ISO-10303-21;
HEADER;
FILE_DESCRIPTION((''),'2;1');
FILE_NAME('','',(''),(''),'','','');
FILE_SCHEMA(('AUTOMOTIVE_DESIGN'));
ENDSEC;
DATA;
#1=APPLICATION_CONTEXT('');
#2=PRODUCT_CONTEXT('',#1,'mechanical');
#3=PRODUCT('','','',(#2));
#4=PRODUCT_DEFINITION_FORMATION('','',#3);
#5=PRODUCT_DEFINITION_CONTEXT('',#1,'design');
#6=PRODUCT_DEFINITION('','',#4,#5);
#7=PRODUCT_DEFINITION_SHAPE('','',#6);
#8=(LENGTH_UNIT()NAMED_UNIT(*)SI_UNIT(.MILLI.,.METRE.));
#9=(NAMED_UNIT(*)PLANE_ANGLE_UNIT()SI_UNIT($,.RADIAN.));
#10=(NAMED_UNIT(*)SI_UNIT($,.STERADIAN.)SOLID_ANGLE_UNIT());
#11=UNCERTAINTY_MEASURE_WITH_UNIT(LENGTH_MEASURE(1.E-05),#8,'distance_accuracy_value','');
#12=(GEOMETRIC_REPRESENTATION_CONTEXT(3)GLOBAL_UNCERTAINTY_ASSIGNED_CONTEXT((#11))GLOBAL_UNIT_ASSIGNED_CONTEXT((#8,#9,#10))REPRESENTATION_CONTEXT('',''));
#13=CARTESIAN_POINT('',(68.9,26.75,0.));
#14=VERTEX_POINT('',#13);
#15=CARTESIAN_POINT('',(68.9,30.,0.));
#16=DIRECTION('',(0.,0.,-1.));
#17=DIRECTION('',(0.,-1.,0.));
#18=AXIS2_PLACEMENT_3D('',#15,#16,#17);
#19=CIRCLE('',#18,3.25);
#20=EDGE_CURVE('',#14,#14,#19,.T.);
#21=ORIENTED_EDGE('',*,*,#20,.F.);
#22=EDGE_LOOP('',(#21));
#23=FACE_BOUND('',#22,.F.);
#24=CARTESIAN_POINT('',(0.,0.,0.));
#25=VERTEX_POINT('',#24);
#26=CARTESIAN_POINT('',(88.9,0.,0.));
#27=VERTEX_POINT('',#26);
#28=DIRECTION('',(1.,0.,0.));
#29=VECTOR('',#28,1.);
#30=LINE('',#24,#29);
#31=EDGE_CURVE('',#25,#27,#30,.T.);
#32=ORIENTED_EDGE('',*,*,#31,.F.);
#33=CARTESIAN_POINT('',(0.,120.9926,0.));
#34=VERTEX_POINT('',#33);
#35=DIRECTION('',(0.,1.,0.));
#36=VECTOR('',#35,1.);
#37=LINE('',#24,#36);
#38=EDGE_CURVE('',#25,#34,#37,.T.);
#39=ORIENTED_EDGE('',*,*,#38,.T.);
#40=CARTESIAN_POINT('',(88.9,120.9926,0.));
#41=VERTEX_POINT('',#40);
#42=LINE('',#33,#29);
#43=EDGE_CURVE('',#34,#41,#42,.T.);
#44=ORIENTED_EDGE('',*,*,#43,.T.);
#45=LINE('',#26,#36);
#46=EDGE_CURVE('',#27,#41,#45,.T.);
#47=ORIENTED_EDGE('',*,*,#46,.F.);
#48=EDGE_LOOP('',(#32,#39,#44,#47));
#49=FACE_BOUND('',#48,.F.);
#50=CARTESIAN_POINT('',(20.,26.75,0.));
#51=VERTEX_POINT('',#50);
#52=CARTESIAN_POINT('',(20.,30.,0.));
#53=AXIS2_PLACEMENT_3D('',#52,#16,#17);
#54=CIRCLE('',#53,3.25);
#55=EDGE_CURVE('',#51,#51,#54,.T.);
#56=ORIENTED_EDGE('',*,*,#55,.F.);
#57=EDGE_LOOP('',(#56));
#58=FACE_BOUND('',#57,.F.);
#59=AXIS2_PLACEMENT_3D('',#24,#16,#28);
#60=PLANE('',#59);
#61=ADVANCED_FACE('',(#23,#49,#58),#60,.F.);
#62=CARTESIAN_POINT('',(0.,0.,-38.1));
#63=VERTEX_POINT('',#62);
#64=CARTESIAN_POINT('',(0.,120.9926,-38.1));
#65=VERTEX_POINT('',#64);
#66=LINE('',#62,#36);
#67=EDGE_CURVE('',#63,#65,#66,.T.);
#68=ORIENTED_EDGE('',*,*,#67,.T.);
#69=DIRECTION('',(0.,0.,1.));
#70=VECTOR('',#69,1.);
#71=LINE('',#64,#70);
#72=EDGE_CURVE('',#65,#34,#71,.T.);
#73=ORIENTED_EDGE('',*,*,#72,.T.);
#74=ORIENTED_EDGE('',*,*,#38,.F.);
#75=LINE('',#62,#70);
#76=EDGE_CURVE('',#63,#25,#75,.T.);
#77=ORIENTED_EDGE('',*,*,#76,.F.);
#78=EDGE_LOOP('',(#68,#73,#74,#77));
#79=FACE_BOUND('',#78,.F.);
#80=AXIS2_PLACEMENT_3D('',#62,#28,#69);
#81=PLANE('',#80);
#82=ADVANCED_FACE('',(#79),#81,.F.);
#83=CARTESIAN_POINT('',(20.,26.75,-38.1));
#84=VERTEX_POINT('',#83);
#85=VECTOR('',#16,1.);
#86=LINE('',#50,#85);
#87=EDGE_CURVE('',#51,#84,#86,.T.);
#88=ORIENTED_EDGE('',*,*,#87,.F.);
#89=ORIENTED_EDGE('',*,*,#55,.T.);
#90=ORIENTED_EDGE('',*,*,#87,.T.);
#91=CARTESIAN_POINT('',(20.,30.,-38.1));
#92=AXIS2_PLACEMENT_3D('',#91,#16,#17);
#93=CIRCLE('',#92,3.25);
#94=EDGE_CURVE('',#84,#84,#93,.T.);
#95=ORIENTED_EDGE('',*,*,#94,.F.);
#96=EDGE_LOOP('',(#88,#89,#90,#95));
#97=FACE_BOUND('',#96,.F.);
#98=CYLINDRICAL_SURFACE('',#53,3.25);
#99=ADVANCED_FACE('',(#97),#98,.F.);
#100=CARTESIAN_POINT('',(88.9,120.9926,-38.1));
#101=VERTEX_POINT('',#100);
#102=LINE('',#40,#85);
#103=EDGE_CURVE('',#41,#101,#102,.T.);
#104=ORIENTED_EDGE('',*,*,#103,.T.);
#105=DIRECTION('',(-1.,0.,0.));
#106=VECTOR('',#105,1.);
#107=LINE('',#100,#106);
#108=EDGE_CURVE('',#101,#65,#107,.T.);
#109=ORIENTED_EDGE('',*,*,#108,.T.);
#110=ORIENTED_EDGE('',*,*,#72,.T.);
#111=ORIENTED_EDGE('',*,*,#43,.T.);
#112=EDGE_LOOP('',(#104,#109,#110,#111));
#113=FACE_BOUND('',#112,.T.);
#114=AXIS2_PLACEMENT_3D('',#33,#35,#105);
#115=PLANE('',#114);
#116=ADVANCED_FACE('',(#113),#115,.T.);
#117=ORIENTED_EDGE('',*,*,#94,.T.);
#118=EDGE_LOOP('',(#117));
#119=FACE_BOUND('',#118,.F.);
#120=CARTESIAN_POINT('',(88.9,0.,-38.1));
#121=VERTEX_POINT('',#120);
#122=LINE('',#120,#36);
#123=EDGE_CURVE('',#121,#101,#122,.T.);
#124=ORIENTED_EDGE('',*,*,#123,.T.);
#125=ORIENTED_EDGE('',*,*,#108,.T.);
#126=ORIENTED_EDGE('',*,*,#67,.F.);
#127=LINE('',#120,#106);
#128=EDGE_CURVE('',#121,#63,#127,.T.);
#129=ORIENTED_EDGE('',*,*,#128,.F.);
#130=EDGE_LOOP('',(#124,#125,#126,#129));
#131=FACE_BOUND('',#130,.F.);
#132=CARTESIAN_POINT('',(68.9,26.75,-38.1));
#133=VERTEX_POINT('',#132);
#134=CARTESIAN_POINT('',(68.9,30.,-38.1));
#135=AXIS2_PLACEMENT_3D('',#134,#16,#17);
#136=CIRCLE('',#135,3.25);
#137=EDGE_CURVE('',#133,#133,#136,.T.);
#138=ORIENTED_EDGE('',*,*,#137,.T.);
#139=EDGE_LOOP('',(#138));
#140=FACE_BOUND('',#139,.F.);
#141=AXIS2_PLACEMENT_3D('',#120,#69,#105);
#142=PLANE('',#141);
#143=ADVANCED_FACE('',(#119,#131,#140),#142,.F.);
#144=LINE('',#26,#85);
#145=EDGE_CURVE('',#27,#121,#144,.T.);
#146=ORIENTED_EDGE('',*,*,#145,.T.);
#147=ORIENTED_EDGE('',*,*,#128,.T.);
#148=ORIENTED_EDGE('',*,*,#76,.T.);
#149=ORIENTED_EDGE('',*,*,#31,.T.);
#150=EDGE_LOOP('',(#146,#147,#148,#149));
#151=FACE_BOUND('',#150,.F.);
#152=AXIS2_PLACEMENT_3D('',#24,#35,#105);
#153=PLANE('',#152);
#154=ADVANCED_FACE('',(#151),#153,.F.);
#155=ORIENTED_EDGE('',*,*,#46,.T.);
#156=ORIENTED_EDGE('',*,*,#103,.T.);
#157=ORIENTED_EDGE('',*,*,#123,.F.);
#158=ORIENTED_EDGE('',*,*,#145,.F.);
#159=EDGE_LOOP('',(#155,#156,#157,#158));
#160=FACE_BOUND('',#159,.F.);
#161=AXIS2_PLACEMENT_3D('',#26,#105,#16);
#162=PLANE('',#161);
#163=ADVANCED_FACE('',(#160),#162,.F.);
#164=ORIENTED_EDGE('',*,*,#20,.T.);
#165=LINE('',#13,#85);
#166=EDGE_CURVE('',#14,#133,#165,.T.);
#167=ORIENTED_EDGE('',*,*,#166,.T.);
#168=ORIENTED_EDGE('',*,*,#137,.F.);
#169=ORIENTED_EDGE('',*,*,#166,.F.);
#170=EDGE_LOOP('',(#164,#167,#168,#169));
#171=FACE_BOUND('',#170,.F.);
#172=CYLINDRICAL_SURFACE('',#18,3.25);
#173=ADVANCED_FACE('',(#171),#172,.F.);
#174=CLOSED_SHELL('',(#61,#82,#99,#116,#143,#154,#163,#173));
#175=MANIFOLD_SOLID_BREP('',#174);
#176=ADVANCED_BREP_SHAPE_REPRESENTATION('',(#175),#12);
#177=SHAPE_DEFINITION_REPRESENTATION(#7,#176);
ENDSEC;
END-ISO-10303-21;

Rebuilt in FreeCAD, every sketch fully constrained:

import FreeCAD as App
import Part
import Sketcher
from FreeCAD import Vector
Q = App.Units.Quantity


def add_polygon(sketch, points):
    """Adds a closed chain of lines whose ends are joined by coincident constraints."""
    first, n = sketch.GeometryCount, len(points)
    for a, b in zip(points, points[1:] + points[:1]):
        sketch.addGeometry(Part.LineSegment(App.Vector(*a, 0), App.Vector(*b, 0)), False)
    for i in range(n):
        sketch.addConstraint(Sketcher.Constraint("Coincident", first + i, 2, first + (i + 1) % n, 1))

doc = App.newDocument("Part")
body = doc.addObject("PartDesign::Body", "Body")

sketch1 = body.newObject("Sketcher::SketchObject", "Sketch")
sketch1.AttachmentSupport = (doc.getObject("XZ_Plane"), [""])
sketch1.MapMode = "FlatFace"
add_polygon(sketch1, [(0, -38), (0, 0), (89, 0), (89, -38)])
sketch1.addConstraint([
    Sketcher.Constraint("Vertical", 0),
    Sketcher.Constraint("Horizontal", 1),
    Sketcher.Constraint("Vertical", 2),
    Sketcher.Constraint("Horizontal", 3),
    Sketcher.Constraint("Coincident", 0, 2, -1, 1),
    Sketcher.Constraint("DistanceX", 1, 1, 1, 2, Q("3.5 in")),
    Sketcher.Constraint("DistanceY", 0, 1, 0, 2, Q("1.5 in")),
])
pad1 = body.newObject("PartDesign::Pad", "Pad")
pad1.Profile = sketch1
pad1.Length = Q("4.7634882 in")
pad1.Reversed = True

sketch2 = body.newObject("Sketcher::SketchObject", "Sketch001")
sketch2.AttachmentSupport = (doc.getObject("XY_Plane"), [""])
sketch2.MapMode = "FlatFace"
sketch2.addGeometry([
    Part.Circle(Vector(68.9, 30, 0), Vector(0, 0, 1), 3.2),
    Part.Circle(Vector(20, 30, 0), Vector(0, 0, 1), 3.2),
], False)
sketch2.addConstraint([
    Sketcher.Constraint("Equal", 0, 1),
    Sketcher.Constraint("Horizontal", 0, 3, 1, 3),
    Sketcher.Constraint("Diameter", 0, Q("0.2559 in")),
    Sketcher.Constraint("DistanceX", -1, 1, 0, 3, Q("2.7126 in")),
    Sketcher.Constraint("DistanceY", -1, 1, 0, 3, Q("1.1811 in")),
    Sketcher.Constraint("DistanceX", -1, 1, 1, 3, Q("0.7874 in")),
])
doc.recompute()
hole = body.newObject("PartDesign::Hole", "Hole")
hole.Profile = sketch2
hole.ThreadType = "None"
hole.Diameter = Q("0.2559055 in")
hole.DepthType = "ThroughAll"

doc.recompute()
